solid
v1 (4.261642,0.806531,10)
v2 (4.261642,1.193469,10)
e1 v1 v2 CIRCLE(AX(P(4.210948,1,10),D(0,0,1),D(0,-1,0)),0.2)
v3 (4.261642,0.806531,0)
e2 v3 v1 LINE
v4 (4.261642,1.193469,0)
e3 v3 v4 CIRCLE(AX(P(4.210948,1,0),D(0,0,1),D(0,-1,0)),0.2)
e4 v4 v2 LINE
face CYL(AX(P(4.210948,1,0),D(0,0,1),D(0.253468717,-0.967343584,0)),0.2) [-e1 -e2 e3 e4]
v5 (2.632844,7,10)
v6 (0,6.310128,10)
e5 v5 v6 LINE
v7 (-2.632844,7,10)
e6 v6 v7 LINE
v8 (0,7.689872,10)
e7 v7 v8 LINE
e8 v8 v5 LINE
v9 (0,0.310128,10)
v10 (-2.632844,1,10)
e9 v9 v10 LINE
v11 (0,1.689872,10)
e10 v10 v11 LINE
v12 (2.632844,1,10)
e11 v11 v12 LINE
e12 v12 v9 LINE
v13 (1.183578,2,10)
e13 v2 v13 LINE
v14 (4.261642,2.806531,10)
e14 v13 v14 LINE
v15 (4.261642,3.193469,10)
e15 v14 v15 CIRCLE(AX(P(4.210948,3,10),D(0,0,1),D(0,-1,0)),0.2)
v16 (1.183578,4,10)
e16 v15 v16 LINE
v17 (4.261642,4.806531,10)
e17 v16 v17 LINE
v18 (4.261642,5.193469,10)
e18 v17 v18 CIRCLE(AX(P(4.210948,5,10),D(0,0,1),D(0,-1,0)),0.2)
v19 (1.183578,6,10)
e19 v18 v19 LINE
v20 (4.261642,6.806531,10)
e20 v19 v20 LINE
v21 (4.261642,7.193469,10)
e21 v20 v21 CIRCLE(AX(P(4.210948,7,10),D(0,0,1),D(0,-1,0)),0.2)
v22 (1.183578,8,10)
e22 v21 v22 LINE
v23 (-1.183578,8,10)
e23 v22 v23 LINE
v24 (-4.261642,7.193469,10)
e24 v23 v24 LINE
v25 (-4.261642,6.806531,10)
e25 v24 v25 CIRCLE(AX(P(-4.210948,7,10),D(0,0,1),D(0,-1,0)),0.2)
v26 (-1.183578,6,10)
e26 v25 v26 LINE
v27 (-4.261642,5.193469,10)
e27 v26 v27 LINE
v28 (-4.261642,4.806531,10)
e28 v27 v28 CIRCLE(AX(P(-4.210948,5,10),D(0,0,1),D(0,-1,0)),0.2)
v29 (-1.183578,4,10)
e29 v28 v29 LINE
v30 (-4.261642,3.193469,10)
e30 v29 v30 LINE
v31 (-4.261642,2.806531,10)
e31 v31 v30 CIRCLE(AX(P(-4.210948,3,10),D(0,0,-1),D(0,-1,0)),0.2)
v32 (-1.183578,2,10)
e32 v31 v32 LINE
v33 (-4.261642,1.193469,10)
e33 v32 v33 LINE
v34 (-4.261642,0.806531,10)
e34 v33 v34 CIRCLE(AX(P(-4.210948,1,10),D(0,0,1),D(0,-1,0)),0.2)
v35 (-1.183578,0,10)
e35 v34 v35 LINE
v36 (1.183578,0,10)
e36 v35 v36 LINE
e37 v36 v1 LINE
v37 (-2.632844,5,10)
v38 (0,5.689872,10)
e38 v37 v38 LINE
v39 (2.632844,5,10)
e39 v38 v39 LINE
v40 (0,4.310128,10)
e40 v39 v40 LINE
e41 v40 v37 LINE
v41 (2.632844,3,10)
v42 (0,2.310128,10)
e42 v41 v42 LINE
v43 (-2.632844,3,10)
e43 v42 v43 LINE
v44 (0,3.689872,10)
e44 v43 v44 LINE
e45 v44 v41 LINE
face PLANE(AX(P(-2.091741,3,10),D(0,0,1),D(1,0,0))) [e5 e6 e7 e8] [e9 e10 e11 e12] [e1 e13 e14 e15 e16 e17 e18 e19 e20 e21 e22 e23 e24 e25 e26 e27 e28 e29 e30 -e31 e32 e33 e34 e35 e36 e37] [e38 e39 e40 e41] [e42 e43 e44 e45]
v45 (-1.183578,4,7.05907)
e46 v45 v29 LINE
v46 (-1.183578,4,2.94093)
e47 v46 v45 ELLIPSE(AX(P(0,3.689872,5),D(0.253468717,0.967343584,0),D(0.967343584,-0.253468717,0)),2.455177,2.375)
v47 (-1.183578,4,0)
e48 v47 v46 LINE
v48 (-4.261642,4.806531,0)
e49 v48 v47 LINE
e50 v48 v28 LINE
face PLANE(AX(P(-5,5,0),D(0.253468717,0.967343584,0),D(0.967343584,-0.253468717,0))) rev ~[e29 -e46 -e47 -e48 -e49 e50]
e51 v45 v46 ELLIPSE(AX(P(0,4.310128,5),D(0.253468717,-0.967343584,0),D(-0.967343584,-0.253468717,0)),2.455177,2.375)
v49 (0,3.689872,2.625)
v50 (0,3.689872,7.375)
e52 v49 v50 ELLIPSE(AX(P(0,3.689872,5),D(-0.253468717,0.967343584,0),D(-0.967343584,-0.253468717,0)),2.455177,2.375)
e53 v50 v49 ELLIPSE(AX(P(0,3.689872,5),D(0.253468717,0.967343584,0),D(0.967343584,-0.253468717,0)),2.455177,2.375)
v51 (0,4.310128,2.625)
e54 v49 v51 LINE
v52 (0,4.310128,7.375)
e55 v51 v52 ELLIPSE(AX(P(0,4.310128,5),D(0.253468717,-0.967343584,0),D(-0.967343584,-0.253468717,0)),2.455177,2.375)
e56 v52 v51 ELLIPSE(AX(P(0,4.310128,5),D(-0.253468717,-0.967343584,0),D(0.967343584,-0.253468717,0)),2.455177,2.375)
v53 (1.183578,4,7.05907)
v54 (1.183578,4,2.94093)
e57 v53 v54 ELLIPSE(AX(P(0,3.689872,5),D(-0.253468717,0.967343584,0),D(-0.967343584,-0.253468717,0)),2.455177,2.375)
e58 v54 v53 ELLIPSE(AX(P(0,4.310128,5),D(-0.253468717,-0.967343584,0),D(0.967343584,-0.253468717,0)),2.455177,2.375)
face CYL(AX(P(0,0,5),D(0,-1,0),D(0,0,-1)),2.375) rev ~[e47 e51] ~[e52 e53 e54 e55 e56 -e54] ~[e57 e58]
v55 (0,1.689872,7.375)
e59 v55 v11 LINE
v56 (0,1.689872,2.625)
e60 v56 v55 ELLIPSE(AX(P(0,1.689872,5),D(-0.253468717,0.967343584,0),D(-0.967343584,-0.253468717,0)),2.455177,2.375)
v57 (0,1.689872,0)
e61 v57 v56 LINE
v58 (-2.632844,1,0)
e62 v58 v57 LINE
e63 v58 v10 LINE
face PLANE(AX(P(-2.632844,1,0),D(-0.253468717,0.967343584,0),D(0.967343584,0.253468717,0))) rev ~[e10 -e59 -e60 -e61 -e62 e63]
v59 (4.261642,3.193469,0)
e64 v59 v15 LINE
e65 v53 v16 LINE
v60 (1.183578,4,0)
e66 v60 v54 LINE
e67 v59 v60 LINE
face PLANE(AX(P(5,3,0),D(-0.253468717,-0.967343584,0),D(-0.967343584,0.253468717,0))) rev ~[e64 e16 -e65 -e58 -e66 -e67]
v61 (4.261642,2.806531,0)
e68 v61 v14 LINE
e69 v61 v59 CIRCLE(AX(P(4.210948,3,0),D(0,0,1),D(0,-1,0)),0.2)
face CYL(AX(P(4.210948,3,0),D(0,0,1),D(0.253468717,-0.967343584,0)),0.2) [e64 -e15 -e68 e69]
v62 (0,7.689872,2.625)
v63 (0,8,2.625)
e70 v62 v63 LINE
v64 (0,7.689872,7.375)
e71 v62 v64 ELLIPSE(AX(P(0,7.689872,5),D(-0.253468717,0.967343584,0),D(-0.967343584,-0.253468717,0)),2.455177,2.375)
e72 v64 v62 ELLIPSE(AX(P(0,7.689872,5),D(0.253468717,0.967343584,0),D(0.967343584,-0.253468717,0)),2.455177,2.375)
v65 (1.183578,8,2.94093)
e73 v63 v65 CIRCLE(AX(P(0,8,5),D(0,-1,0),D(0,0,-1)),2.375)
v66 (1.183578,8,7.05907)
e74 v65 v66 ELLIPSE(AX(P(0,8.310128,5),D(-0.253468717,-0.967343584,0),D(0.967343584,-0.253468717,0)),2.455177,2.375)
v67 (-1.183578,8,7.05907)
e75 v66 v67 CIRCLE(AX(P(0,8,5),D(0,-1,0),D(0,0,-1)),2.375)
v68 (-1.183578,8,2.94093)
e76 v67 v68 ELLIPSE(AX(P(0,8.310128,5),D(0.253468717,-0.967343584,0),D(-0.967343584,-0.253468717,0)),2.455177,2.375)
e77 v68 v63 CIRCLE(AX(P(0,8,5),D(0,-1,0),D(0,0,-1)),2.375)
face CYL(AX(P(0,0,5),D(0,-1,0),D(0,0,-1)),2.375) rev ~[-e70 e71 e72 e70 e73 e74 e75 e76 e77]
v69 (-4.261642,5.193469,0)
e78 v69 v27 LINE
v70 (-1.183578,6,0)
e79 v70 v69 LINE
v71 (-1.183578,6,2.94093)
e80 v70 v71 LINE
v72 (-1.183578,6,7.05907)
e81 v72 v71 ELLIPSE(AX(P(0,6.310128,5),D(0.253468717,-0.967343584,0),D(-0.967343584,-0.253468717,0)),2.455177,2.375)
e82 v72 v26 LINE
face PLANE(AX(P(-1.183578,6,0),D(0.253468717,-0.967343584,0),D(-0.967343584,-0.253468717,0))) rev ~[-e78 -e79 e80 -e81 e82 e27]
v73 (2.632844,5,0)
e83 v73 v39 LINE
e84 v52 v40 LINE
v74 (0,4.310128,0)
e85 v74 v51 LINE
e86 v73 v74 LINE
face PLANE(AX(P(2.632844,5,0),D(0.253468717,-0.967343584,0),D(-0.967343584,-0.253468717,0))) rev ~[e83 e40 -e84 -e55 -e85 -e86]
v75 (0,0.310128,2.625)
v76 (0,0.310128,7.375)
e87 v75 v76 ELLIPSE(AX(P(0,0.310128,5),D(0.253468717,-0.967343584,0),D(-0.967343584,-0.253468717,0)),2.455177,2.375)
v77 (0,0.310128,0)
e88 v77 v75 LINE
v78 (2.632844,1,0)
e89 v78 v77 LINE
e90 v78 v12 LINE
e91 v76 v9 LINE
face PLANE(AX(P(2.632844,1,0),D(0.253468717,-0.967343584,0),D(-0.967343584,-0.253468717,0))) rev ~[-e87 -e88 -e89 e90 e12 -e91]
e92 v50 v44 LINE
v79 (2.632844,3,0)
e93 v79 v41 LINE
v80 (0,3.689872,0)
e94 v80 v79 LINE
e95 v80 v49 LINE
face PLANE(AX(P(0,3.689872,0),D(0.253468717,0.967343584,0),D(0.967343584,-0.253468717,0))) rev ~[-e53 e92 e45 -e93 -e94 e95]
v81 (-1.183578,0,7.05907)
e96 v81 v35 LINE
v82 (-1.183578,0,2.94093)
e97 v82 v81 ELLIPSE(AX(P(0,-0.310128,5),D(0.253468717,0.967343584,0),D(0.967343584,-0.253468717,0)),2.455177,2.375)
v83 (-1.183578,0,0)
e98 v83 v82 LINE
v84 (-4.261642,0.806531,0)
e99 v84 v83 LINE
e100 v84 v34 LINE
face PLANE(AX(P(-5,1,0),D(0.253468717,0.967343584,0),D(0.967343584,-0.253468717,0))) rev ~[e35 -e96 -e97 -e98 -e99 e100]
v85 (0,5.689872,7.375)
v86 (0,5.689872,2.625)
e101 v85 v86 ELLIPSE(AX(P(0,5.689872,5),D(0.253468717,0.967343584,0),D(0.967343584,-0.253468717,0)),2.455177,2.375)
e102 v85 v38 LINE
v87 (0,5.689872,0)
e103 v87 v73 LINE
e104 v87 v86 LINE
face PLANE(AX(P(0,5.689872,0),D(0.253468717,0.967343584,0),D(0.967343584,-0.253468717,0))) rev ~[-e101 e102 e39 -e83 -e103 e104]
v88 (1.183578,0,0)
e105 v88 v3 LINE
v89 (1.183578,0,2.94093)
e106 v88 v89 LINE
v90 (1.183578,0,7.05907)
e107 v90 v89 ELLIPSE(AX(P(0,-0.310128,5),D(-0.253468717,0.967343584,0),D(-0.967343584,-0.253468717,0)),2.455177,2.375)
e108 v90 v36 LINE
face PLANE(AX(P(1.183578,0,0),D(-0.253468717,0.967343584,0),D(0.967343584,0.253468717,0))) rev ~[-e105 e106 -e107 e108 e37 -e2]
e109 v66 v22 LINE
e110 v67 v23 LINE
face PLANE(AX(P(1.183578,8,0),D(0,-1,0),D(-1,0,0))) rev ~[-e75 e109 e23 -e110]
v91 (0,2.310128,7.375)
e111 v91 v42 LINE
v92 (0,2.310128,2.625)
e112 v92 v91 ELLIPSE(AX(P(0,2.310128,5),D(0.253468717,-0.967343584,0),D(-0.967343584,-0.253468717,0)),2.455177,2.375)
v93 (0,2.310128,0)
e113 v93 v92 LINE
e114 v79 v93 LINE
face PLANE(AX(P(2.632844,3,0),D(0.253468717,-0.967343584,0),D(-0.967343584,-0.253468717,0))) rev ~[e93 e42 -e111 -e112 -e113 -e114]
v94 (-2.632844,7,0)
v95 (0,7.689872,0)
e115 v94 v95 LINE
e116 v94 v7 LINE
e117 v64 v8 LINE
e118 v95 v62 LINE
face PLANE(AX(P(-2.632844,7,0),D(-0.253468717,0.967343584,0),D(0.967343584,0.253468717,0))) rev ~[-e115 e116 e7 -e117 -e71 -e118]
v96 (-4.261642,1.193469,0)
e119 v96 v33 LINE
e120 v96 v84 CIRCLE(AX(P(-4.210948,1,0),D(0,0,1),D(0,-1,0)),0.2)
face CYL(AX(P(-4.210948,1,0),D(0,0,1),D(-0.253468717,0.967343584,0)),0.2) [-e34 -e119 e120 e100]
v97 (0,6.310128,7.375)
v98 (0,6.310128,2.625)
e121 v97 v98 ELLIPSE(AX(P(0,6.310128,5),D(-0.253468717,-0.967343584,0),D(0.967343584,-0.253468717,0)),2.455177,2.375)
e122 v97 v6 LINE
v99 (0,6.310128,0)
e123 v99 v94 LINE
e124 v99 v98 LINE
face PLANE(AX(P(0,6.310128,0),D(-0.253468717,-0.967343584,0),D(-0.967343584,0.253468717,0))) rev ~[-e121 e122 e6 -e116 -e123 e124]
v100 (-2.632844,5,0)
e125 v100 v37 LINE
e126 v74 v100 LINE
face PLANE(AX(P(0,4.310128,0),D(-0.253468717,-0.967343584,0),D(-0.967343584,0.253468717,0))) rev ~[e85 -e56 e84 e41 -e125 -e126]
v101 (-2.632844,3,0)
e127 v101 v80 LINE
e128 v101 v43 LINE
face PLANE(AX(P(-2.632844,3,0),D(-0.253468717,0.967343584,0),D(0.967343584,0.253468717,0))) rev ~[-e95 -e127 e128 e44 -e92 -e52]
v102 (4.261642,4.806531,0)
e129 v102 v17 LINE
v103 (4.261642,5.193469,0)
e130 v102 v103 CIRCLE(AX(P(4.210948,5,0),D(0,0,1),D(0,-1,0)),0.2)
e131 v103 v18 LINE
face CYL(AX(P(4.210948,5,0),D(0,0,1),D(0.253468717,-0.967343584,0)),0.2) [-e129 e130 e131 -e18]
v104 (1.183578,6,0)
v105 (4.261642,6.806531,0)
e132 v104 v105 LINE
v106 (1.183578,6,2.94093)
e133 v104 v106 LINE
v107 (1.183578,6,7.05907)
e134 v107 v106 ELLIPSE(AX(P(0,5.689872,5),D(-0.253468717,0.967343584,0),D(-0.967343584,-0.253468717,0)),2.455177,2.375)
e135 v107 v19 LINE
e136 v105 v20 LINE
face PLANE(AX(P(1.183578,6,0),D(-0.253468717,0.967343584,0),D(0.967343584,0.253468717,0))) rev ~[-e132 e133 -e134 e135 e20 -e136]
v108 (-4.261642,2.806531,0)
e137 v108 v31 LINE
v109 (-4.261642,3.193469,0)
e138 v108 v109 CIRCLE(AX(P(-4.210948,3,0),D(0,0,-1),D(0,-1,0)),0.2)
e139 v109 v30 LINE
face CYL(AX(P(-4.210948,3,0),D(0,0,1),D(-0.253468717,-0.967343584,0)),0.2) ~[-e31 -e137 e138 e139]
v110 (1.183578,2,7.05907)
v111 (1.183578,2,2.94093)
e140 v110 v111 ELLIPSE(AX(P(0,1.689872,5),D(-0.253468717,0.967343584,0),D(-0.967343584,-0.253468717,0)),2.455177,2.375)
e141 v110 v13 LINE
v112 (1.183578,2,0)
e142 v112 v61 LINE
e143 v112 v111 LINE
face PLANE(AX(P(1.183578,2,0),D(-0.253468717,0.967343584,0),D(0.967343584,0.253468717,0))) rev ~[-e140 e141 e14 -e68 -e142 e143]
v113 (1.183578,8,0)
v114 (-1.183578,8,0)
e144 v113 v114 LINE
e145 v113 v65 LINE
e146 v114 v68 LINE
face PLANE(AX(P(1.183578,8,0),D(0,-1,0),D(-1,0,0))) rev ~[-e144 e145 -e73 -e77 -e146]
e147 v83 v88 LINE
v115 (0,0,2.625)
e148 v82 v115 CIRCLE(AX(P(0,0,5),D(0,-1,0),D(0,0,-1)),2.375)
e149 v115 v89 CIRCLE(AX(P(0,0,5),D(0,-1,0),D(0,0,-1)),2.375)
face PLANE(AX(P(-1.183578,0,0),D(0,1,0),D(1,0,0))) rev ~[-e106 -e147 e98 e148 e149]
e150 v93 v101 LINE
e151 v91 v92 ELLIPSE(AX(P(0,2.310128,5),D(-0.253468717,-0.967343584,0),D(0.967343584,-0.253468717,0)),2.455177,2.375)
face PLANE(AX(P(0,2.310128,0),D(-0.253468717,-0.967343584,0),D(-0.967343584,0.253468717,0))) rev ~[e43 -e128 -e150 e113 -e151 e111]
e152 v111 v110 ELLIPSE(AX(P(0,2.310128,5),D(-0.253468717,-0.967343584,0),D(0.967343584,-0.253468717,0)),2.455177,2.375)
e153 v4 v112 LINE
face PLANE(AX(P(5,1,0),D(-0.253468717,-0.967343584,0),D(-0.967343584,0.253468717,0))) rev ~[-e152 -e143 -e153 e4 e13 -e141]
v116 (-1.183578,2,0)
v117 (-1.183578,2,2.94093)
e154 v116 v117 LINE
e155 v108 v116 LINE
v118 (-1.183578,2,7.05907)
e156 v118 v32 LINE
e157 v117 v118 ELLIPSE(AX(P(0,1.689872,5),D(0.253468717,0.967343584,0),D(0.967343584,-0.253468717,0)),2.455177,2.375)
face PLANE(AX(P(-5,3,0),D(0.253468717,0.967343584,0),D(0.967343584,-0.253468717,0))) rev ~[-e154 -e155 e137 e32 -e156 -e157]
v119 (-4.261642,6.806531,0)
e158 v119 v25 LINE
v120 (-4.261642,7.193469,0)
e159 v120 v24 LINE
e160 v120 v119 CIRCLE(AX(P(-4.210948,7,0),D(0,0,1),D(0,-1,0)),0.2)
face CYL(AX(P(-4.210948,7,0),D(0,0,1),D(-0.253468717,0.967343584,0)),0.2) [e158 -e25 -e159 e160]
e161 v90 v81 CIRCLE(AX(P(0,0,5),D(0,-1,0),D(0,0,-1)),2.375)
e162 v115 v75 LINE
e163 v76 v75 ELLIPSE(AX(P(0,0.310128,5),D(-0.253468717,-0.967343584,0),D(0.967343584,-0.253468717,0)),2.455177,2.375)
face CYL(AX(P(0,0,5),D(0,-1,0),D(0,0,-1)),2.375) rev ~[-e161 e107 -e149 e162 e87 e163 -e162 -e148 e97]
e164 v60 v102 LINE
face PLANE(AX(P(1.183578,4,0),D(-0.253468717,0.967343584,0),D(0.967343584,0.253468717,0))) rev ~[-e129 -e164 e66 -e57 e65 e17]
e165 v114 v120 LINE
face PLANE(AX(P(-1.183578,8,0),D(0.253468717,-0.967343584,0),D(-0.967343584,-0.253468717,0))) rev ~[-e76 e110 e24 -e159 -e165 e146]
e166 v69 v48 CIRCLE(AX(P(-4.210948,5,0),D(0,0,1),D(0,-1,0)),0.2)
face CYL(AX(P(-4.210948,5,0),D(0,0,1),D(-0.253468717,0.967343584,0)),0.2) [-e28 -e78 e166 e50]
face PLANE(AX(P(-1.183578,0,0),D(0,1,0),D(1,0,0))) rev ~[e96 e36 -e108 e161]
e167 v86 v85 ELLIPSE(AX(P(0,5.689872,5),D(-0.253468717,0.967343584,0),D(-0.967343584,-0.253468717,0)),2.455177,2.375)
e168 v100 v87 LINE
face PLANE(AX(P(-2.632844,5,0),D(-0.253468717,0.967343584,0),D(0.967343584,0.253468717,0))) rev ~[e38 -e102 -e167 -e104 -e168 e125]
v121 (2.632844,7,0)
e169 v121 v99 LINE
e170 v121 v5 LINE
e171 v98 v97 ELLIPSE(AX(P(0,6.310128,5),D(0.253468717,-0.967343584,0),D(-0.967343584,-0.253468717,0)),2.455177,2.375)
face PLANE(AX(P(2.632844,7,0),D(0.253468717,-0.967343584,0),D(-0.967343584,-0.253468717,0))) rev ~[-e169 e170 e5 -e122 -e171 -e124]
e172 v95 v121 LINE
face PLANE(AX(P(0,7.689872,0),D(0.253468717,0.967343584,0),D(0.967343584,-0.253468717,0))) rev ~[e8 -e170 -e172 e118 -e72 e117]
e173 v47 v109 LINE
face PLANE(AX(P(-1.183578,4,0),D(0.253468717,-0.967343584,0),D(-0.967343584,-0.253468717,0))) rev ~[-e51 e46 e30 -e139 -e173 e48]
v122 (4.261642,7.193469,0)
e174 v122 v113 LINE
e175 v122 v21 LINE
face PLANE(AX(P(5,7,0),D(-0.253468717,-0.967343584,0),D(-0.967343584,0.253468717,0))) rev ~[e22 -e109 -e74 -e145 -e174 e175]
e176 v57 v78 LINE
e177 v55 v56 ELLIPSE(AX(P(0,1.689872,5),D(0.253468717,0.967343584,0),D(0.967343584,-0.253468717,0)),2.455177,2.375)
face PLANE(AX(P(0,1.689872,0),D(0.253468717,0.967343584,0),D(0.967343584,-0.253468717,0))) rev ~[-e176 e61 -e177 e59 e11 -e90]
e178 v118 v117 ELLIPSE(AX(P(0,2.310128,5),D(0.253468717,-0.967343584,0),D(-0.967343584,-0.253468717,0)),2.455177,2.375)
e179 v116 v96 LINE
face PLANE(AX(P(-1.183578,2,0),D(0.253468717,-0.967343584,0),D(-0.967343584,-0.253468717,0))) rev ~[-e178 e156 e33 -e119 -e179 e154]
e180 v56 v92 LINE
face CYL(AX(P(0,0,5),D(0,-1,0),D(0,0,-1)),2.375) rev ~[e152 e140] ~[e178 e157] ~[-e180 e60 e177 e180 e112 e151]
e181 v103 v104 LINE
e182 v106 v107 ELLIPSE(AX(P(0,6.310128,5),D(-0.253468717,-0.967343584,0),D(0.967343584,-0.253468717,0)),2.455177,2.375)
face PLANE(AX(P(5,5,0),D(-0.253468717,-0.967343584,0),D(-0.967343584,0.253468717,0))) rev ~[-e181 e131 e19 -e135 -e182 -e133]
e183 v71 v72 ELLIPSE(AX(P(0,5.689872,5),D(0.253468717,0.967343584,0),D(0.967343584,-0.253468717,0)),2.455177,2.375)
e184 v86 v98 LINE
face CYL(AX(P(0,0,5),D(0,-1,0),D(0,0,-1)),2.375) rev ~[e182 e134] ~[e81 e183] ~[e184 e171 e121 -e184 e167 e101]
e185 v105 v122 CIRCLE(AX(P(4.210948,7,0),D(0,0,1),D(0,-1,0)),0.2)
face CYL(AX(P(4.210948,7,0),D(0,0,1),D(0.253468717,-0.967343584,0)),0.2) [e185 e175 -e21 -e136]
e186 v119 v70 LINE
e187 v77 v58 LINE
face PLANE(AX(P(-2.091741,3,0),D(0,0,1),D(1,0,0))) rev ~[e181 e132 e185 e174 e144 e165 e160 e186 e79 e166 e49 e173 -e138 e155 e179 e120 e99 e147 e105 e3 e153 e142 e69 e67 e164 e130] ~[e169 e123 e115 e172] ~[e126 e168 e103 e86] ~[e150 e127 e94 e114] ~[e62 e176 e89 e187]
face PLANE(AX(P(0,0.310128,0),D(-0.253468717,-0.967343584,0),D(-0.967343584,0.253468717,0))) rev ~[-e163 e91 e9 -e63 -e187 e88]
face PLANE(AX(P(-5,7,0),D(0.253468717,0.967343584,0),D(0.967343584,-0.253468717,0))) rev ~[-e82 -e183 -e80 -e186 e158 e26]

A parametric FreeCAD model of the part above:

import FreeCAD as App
import Part
import Sketcher

V = App.Vector
Q = App.Units.Quantity


def edges_at(feature, points):
    """Names of the edges that pass closest to the given points."""
    edges = feature.Shape.Edges
    near = lambda p: min(range(len(edges)), key=lambda i: edges[i].distToShape(Part.Vertex(*p))[0])
    return sorted({f"Edge{near(p) + 1}" for p in points})


def add_polygon(sketch, points):
    """Adds a closed chain of lines whose ends are joined by coincident constraints."""
    first, n = sketch.GeometryCount, len(points)
    for a, b in zip(points, points[1:] + points[:1]):
        sketch.addGeometry(Part.LineSegment(App.Vector(*a, 0), App.Vector(*b, 0)), False)
    for i in range(n):
        sketch.addConstraint(Sketcher.Constraint("Coincident", first + i, 2, first + (i + 1) % n, 1))

doc = App.newDocument("Part")
body = doc.addObject("PartDesign::Body", "Body")

# Sketch on XY plane
sketch1 = doc.addObject("Sketcher::SketchObject", "Sketch")
body.addObject(sketch1)
sketch1.AttachmentSupport = (doc.XY_Plane, [""])
sketch1.MapMode = "FlatFace"
add_polygon(sketch1, [(-5, 1), (-1.2, 0), (1.2, 0), (5, 1), (1.2, 2), (-1.2, 2)])  # lines 0-5
add_polygon(sketch1, [(2.6, 1), (0, 0.3), (-2.6, 1), (0, 1.7)])  # lines 6-9
sketch1.addConstraint(Sketcher.Constraint("Horizontal", 1))
sketch1.addConstraint(Sketcher.Constraint("Horizontal", 4))
sketch1.addConstraint(Sketcher.Constraint("Symmetric", 0, 2, 1, 2, -1, 1))
sketch1.addConstraint(Sketcher.Constraint("Symmetric", 2, 2, 5, 2, -2))
sketch1.addConstraint(Sketcher.Constraint("Symmetric", 7, 2, 9, 2, -2))
sketch1.addConstraint(Sketcher.Constraint("PointOnObject", 6, 2, -2))
sketch1.addConstraint(Sketcher.Constraint("PointOnObject", 8, 2, -2))
sketch1.addConstraint(Sketcher.Constraint("Parallel", 0, 3))
sketch1.addConstraint(Sketcher.Constraint("Parallel", 2, 5))
sketch1.addConstraint(Sketcher.Constraint("Parallel", 5, 6))
sketch1.addConstraint(Sketcher.Constraint("Parallel", 6, 8))
sketch1.addConstraint(Sketcher.Constraint("Horizontal", 5, 2, 7, 2))
sketch1.addConstraint(Sketcher.Constraint("Vertical", 1, 2, 3, 2))
sketch1.addConstraint(Sketcher.Constraint("DistanceX", -1, 1, 2, 2, Q("5 mm")))
sketch1.addConstraint(Sketcher.Constraint("DistanceY", -1, 1, 2, 2, Q("1 mm")))
sketch1.addConstraint(Sketcher.Constraint("Distance", 0, Q("3.94526 mm")))
sketch1.addConstraint(Sketcher.Constraint("DistanceX", 7, 2, 1, 2, Q("3.816422 mm")))
pad1 = doc.addObject("PartDesign::Pad", "Pad")
body.addObject(pad1)
pad1.Profile = sketch1
pad1.Length = 10
doc.recompute()

linearpattern = doc.addObject("PartDesign::LinearPattern", "LinearPattern")
body.addObject(linearpattern)
linearpattern.Originals = [pad1]
linearpattern.Direction = (doc.Y_Axis, [""])
linearpattern.Mode = "offset"
linearpattern.Offset = 2
linearpattern.Occurrences = 4
body.Tip = linearpattern

# Sketch on XZ plane
sketch2 = doc.addObject("Sketcher::SketchObject", "Sketch001")
body.addObject(sketch2)
sketch2.AttachmentSupport = (doc.XZ_Plane, [""])
sketch2.MapMode = "FlatFace"
sketch2.addGeometry(Part.Circle(V(0, 5, 0), V(0, 0, 1), 2.4), False)
sketch2.addConstraint(Sketcher.Constraint("PointOnObject", 0, 3, -2))
sketch2.addConstraint(Sketcher.Constraint("Diameter", 0, Q("4.75 mm")))
sketch2.addConstraint(Sketcher.Constraint("DistanceY", -1, 1, 0, 3, Q("5 mm")))
pocket1 = doc.addObject("PartDesign::Pocket", "Pocket")
body.addObject(pocket1)
pocket1.Profile = sketch2
pocket1.Type = "ThroughAll"
doc.recompute()

fillet = doc.addObject("PartDesign::Fillet", "Fillet")
body.addObject(fillet)
fillet.Base = (pocket1, edges_at(pocket1, [
    (5, 1, 5),
    (-5, 1, 5),
    (5, 3, 5),
    (-5, 3, 5),
    (5, 5, 5),
    (-5, 5, 5),
    (5, 7, 5),
    (-5, 7, 5),
]))
fillet.Radius = 0.2

doc.recompute()
